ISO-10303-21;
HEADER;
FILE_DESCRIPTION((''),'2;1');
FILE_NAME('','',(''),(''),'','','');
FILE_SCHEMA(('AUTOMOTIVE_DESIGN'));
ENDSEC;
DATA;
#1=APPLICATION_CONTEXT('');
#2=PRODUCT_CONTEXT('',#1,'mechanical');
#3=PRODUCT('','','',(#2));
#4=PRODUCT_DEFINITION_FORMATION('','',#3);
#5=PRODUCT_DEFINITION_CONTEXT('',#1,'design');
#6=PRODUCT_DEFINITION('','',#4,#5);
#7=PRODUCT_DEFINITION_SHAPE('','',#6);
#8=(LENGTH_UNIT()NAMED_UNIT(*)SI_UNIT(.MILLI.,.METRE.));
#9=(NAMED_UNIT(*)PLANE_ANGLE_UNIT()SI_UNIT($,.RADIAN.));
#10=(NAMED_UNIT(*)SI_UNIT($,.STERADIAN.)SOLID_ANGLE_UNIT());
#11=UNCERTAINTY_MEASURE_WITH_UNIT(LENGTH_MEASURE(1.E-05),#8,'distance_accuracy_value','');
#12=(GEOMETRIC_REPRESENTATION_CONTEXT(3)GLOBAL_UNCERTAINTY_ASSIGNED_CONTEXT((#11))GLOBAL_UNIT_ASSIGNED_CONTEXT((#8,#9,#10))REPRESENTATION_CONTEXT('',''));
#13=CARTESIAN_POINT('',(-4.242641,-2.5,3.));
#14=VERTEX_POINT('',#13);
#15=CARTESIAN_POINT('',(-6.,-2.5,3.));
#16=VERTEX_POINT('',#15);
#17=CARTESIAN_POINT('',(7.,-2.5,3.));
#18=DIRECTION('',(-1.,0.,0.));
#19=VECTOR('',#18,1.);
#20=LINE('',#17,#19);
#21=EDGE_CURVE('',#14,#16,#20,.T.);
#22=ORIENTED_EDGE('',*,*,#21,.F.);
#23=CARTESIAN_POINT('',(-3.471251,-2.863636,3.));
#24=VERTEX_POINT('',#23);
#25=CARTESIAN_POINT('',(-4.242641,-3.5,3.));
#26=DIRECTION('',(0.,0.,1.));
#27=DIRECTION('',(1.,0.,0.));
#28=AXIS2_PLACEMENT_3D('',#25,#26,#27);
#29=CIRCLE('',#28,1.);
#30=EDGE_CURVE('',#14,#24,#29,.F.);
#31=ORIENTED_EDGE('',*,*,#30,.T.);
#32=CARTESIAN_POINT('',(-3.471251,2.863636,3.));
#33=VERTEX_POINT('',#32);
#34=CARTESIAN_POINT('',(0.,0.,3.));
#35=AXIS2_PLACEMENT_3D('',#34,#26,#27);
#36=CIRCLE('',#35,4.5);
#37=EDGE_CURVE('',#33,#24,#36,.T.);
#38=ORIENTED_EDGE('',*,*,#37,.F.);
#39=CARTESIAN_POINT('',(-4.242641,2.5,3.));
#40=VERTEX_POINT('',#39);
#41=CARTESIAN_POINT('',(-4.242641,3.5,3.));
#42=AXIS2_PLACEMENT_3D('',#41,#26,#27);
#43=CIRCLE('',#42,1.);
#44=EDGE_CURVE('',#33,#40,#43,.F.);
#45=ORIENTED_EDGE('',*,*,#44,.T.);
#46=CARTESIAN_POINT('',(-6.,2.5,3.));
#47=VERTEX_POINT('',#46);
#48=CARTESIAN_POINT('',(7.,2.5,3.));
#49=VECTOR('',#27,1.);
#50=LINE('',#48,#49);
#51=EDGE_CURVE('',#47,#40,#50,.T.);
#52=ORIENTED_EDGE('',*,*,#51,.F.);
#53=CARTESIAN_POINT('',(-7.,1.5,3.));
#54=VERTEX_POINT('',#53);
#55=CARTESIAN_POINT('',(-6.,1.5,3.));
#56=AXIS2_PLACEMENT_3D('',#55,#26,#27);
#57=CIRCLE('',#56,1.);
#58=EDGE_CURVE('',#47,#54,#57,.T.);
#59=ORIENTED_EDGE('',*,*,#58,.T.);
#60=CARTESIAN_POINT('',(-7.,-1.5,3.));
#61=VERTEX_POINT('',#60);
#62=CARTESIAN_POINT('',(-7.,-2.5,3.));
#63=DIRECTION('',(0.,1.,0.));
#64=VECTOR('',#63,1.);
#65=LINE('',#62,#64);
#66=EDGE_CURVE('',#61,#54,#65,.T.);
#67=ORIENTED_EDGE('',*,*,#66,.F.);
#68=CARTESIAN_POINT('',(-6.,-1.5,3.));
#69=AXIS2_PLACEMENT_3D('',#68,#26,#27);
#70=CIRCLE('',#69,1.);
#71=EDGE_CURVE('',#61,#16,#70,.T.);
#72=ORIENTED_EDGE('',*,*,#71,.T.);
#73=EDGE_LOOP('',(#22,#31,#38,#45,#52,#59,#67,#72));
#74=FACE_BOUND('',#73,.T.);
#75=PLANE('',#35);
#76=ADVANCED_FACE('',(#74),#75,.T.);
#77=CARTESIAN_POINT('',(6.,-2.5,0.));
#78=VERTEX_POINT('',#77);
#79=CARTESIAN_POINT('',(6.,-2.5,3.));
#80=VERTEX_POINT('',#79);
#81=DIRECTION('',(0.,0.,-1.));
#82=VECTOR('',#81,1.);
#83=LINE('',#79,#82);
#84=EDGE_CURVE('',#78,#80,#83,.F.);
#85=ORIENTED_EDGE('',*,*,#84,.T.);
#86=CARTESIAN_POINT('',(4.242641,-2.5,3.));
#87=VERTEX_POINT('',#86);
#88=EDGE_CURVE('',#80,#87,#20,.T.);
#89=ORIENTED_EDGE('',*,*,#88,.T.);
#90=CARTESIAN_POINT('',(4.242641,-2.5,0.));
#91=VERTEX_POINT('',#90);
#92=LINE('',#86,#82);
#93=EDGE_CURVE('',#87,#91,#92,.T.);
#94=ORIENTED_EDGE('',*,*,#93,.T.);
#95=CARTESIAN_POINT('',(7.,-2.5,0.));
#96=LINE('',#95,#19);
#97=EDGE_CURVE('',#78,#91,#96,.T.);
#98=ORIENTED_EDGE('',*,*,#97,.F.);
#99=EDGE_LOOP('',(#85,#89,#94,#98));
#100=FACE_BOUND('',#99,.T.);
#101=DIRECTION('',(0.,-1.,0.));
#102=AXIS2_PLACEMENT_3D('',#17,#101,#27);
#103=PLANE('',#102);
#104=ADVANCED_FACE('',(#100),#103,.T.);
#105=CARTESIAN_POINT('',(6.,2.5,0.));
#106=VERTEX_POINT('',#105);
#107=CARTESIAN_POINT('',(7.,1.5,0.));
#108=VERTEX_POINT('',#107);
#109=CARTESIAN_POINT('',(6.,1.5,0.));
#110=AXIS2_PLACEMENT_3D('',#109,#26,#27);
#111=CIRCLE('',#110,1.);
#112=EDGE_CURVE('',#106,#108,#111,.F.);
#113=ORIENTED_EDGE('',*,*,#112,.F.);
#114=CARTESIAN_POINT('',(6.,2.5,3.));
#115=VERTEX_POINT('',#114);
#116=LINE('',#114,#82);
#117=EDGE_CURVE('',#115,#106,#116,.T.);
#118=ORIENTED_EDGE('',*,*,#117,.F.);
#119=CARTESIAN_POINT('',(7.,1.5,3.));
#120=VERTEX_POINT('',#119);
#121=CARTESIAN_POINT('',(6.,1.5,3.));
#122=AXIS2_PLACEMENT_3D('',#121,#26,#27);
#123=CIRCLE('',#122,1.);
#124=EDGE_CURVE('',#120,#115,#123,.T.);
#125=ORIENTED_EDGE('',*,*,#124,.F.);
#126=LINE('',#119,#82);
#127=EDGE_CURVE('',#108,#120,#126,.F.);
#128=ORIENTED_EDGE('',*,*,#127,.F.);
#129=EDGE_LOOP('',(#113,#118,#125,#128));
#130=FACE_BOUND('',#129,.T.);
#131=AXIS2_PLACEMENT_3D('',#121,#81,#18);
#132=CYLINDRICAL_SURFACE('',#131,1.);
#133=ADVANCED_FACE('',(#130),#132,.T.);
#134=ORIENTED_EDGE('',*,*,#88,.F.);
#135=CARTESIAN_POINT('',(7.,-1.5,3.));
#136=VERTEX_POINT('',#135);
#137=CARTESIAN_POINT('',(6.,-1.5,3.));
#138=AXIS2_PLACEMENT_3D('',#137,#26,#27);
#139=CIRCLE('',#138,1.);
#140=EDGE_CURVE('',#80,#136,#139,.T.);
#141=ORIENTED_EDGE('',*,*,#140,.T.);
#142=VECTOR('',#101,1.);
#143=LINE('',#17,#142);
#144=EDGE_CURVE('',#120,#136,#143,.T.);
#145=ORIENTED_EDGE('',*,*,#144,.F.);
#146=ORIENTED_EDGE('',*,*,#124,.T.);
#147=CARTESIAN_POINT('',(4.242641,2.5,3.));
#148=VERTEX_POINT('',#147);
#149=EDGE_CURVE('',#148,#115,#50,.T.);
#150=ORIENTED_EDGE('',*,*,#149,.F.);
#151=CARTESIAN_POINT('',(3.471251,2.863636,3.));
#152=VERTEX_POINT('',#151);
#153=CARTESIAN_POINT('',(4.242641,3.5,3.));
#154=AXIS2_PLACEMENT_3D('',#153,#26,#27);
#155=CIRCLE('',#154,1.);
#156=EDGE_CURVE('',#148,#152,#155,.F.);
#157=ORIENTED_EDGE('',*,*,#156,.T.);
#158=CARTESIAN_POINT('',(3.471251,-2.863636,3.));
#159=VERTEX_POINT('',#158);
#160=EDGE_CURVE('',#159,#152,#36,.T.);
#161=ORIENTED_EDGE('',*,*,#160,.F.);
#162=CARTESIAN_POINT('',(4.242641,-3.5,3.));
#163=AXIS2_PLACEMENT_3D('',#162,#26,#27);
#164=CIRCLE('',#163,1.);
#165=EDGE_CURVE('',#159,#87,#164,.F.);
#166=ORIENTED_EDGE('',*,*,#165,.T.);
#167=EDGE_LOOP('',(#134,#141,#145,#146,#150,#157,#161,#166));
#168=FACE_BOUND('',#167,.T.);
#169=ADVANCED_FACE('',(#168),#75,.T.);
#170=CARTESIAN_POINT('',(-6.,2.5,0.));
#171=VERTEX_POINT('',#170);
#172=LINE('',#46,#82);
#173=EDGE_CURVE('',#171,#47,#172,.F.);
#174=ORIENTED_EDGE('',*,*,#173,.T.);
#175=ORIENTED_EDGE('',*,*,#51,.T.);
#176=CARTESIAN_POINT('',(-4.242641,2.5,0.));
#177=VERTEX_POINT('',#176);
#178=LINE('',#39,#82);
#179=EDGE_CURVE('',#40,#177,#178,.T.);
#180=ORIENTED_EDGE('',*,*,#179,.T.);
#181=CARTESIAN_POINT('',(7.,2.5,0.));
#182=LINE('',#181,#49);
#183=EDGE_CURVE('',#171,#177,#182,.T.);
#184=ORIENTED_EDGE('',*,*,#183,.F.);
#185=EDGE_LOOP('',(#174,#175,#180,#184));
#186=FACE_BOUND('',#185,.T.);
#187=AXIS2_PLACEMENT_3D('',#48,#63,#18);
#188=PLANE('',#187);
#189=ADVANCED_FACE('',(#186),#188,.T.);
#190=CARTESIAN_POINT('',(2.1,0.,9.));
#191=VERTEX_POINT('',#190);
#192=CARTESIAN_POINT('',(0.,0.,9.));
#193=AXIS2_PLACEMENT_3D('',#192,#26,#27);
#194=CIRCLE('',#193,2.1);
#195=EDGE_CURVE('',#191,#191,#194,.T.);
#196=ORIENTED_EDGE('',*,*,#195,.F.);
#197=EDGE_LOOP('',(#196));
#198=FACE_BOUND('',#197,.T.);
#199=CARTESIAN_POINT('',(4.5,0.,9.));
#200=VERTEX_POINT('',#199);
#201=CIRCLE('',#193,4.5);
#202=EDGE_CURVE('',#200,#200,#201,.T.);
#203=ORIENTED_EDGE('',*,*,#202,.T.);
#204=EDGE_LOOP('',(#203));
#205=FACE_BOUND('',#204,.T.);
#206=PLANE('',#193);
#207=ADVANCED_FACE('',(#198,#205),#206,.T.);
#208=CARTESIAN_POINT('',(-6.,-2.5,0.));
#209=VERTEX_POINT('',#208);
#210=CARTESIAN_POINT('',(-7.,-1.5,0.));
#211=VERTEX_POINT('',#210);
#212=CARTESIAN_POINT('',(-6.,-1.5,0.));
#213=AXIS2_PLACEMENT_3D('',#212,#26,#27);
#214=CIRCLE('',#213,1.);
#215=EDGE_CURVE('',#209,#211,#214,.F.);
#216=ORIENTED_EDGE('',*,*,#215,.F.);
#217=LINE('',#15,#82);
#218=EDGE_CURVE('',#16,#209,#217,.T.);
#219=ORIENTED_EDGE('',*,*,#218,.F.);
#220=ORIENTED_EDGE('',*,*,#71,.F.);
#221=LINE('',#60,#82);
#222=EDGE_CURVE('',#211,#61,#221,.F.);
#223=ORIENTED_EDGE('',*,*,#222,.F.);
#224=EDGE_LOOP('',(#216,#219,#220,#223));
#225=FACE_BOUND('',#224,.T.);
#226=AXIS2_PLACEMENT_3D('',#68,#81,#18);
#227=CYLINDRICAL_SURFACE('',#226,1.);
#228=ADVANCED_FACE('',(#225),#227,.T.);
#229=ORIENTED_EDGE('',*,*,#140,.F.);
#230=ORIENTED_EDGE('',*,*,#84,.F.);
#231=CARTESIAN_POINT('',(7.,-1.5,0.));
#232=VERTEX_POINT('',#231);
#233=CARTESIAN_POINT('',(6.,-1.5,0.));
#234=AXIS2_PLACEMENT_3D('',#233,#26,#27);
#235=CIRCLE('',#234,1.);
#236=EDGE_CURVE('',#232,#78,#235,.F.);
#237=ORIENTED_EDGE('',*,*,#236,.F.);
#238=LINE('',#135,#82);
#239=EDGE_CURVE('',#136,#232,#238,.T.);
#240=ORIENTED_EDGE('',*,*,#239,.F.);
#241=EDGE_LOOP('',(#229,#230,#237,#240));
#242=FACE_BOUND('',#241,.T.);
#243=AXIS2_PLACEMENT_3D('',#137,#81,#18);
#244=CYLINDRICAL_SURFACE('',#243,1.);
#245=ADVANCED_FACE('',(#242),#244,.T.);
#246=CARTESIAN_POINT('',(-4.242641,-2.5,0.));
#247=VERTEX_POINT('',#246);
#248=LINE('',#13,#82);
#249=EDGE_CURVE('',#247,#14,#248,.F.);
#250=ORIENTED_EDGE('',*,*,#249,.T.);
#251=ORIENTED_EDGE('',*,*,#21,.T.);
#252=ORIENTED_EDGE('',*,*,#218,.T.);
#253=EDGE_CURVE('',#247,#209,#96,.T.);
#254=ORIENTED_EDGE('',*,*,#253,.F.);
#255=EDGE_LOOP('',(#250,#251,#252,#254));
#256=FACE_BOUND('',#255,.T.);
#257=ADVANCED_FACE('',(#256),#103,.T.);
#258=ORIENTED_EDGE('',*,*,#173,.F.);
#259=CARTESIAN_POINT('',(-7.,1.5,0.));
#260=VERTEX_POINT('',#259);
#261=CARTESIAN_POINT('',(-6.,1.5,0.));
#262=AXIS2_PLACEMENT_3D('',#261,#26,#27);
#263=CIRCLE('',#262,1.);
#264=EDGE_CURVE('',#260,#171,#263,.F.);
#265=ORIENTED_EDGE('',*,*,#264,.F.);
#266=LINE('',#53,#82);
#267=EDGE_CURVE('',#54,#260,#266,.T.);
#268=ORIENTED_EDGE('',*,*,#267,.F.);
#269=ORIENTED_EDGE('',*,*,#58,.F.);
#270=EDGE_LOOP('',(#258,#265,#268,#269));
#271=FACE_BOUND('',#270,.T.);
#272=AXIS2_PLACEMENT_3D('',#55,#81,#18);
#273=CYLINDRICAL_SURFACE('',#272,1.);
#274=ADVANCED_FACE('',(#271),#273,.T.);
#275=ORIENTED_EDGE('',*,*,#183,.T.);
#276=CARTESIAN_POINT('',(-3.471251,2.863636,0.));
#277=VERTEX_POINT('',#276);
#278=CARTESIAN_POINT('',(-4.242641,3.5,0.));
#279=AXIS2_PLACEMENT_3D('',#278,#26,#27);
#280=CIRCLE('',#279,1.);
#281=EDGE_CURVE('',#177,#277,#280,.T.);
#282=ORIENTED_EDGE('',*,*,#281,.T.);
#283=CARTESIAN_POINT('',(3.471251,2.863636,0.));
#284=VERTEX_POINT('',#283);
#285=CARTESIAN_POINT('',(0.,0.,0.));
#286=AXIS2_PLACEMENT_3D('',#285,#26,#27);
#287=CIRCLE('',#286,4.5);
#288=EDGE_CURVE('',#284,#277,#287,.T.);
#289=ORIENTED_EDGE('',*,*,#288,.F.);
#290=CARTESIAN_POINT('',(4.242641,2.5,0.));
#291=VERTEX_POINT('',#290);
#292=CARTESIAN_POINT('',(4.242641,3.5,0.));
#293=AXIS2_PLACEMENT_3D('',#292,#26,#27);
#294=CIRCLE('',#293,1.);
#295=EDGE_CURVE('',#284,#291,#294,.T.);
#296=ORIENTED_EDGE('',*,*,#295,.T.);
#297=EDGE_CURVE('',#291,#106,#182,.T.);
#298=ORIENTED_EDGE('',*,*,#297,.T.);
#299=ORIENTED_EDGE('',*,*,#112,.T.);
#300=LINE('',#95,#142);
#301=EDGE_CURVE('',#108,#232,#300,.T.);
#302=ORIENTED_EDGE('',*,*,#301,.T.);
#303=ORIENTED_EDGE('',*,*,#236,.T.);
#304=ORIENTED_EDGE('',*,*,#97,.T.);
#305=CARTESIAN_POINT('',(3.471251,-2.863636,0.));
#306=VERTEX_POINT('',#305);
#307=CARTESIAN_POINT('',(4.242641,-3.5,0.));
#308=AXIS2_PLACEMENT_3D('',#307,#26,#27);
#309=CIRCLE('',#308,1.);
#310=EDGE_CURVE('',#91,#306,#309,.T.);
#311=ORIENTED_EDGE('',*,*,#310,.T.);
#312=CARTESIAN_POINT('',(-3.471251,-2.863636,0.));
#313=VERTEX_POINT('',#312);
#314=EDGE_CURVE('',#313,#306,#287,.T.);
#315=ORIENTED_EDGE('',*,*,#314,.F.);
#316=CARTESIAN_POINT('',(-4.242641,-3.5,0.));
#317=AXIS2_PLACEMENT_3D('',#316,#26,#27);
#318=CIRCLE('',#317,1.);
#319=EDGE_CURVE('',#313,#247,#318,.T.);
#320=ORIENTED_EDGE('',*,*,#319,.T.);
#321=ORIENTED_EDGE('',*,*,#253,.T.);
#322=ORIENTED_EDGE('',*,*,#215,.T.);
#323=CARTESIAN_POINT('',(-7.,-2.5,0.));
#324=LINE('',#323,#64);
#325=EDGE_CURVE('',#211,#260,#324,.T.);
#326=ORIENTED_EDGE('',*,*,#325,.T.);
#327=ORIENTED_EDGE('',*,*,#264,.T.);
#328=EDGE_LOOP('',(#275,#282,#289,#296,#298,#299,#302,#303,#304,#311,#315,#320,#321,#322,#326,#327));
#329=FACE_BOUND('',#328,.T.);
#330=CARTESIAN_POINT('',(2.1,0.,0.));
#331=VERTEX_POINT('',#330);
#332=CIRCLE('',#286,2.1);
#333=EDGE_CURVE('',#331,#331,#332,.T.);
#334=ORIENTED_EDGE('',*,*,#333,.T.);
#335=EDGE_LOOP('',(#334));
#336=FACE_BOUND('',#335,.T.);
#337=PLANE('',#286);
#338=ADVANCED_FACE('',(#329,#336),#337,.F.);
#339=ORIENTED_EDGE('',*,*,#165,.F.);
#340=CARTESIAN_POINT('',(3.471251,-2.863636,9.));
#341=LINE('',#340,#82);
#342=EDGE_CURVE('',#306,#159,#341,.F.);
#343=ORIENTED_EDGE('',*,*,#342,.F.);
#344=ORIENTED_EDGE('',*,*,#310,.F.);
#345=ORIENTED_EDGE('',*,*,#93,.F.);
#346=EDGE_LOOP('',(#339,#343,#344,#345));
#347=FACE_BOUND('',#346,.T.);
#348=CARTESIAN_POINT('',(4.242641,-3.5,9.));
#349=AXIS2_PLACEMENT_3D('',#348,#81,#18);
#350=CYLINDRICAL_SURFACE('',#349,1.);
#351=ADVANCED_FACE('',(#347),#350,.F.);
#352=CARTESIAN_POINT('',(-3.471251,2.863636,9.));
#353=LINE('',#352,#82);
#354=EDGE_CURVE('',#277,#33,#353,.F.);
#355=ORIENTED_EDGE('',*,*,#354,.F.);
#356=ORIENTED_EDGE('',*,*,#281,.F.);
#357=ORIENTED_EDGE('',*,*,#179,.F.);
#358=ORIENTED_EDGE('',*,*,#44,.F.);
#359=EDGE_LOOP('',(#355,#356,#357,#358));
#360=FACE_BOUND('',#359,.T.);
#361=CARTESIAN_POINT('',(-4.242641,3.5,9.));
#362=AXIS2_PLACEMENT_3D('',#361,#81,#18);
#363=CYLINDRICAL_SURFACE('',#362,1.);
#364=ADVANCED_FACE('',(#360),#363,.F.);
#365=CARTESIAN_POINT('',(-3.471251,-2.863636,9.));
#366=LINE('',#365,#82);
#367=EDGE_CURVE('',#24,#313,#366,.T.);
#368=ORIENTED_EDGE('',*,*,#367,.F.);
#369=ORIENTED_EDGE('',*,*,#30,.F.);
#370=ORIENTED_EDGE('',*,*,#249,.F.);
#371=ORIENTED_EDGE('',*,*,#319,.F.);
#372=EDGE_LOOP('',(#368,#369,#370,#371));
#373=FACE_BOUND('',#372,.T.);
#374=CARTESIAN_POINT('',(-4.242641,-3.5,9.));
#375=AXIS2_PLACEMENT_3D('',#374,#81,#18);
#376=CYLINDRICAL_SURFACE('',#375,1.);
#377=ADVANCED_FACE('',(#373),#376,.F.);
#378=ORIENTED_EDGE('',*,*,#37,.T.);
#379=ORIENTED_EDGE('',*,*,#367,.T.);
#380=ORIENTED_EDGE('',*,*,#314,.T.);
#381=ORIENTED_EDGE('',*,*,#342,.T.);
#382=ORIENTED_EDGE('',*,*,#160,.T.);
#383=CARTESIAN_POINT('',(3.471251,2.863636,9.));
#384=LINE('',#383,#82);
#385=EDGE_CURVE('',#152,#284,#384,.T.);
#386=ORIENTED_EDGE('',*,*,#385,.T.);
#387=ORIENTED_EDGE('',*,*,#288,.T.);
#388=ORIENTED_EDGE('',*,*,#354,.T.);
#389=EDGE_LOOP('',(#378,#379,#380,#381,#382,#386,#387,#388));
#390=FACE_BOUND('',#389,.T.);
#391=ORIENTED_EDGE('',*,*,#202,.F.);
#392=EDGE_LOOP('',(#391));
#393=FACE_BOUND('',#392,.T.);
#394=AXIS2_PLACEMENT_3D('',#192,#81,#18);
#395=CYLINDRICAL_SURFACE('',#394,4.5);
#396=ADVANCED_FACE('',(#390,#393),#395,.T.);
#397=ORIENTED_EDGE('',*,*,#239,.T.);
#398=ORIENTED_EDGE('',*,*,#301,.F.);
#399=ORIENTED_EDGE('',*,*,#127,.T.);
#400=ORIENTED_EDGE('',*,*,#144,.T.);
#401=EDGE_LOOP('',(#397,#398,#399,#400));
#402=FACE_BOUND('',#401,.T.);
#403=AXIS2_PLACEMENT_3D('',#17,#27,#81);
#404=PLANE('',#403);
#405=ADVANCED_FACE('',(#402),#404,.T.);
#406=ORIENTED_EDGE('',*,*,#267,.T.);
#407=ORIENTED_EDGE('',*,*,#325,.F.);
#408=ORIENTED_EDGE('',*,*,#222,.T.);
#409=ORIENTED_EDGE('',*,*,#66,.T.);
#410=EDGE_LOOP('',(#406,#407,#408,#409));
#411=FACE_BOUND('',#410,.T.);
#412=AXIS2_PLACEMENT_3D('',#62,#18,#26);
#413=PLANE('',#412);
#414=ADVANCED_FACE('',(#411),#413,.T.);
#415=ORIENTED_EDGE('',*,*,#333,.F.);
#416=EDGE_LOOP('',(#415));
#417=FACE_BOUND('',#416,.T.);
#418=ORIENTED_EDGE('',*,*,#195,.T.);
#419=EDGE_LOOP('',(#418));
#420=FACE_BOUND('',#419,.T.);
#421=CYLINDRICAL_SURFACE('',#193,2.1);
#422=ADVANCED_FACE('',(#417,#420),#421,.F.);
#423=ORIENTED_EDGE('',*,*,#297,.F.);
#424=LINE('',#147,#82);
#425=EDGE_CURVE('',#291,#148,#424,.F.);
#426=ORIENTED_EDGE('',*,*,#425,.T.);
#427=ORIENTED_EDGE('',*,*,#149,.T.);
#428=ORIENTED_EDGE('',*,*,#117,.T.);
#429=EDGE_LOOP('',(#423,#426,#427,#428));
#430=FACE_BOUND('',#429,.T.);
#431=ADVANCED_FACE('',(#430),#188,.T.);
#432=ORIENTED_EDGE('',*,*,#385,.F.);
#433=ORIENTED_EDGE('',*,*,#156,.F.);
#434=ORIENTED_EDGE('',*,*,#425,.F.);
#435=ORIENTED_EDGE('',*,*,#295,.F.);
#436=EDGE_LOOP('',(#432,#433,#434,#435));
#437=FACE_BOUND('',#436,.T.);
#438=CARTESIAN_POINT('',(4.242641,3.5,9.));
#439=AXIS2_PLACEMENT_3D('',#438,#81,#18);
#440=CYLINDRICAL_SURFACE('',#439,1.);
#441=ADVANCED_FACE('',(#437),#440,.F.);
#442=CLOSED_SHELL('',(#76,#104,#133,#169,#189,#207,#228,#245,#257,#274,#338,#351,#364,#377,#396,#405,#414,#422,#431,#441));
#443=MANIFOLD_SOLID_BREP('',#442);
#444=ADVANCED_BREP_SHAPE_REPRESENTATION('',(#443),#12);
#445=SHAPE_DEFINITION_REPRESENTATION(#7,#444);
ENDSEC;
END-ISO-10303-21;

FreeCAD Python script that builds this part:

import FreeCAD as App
import Part
import Sketcher

V = App.Vector


def edges_at(feature, points):
    """Names of the edges that pass closest to the given points."""
    edges = feature.Shape.Edges
    near = lambda p: min(range(len(edges)), key=lambda i: edges[i].distToShape(Part.Vertex(*p))[0])
    return sorted({f"Edge{near(p) + 1}" for p in points})


def add_polygon(sketch, points):
    """Adds a closed chain of lines whose ends are joined by coincident constraints."""
    first, n = sketch.GeometryCount, len(points)
    for a, b in zip(points, points[1:] + points[:1]):
        sketch.addGeometry(Part.LineSegment(App.Vector(*a, 0), App.Vector(*b, 0)), False)
    for i in range(n):
        sketch.addConstraint(Sketcher.Constraint("Coincident", first + i, 2, first + (i + 1) % n, 1))

doc = App.newDocument("Part")
body = doc.addObject("PartDesign::Body", "Body")

# Sketch on XY plane
sketch1 = body.newObject("Sketcher::SketchObject", "Sketch")
sketch1.AttachmentSupport = (doc.getObject("XY_Plane"), [""])
sketch1.MapMode = "FlatFace"
sketch1.addGeometry(Part.Circle(V(0, 0, 0), V(0, 0, 1), 4.5), False)
sketch1.addConstraint(Sketcher.Constraint("Coincident", 0, 3, -1, 1))
sketch1.addConstraint(Sketcher.Constraint("Diameter", 0, 9.0))
pad1 = body.newObject("PartDesign::Pad", "Pad")
pad1.Profile = sketch1
pad1.Length = 9

# Sketch on XY plane
sketch2 = body.newObject("Sketcher::SketchObject", "Sketch001")
sketch2.AttachmentSupport = (doc.getObject("XY_Plane"), [""])
sketch2.MapMode = "FlatFace"
add_polygon(sketch2, [(7, 2.5), (7, -2.5), (-7, -2.5), (-7, 2.5)])  # lines 0-3
sketch2.addConstraint(Sketcher.Constraint("Vertical", 0))
sketch2.addConstraint(Sketcher.Constraint("Horizontal", 1))
sketch2.addConstraint(Sketcher.Constraint("Vertical", 2))
sketch2.addConstraint(Sketcher.Constraint("Horizontal", 3))
sketch2.addConstraint(Sketcher.Constraint("Symmetric", 0, 2, 2, 2, -1, 1))
sketch2.addConstraint(Sketcher.Constraint("DistanceX", 1, 2, 1, 1, 14.0))
sketch2.addConstraint(Sketcher.Constraint("DistanceY", 0, 2, 0, 1, 5.0))
pad2 = body.newObject("PartDesign::Pad", "Pad001")
pad2.Profile = sketch2
pad2.Length = 3

# Sketch on XY plane
sketch3 = body.newObject("Sketcher::SketchObject", "Sketch002")
sketch3.AttachmentSupport = (doc.getObject("XY_Plane"), [""])
sketch3.MapMode = "FlatFace"
sketch3.AttachmentOffset = App.Placement(V(0, 0, 9), App.Rotation())
sketch3.addGeometry(Part.Circle(V(0, 0, 0), V(0, 0, 1), 2.1), False)
sketch3.addConstraint(Sketcher.Constraint("Coincident", 0, 3, -1, 1))
sketch3.addConstraint(Sketcher.Constraint("Diameter", 0, 4.2))
doc.recompute()
hole = body.newObject("PartDesign::Hole", "Hole")
hole.Profile = sketch3
hole.ThreadType = "None"
hole.Diameter = 4.2
hole.DepthType = "ThroughAll"
doc.recompute()

fillet = body.newObject("PartDesign::Fillet", "Fillet")
fillet.Base = (hole, edges_at(hole, [
    (-7, -2.5, 1.5),
    (7, 2.5, 1.5),
    (-7, 2.5, 1.5),
    (-3.742, -2.5, 1.5),
    (3.742, -2.5, 1.5),
    (7, -2.5, 1.5),
    (3.742, 2.5, 1.5),
    (-3.742, 2.5, 1.5),
]))
fillet.Radius = 1

doc.recompute()
